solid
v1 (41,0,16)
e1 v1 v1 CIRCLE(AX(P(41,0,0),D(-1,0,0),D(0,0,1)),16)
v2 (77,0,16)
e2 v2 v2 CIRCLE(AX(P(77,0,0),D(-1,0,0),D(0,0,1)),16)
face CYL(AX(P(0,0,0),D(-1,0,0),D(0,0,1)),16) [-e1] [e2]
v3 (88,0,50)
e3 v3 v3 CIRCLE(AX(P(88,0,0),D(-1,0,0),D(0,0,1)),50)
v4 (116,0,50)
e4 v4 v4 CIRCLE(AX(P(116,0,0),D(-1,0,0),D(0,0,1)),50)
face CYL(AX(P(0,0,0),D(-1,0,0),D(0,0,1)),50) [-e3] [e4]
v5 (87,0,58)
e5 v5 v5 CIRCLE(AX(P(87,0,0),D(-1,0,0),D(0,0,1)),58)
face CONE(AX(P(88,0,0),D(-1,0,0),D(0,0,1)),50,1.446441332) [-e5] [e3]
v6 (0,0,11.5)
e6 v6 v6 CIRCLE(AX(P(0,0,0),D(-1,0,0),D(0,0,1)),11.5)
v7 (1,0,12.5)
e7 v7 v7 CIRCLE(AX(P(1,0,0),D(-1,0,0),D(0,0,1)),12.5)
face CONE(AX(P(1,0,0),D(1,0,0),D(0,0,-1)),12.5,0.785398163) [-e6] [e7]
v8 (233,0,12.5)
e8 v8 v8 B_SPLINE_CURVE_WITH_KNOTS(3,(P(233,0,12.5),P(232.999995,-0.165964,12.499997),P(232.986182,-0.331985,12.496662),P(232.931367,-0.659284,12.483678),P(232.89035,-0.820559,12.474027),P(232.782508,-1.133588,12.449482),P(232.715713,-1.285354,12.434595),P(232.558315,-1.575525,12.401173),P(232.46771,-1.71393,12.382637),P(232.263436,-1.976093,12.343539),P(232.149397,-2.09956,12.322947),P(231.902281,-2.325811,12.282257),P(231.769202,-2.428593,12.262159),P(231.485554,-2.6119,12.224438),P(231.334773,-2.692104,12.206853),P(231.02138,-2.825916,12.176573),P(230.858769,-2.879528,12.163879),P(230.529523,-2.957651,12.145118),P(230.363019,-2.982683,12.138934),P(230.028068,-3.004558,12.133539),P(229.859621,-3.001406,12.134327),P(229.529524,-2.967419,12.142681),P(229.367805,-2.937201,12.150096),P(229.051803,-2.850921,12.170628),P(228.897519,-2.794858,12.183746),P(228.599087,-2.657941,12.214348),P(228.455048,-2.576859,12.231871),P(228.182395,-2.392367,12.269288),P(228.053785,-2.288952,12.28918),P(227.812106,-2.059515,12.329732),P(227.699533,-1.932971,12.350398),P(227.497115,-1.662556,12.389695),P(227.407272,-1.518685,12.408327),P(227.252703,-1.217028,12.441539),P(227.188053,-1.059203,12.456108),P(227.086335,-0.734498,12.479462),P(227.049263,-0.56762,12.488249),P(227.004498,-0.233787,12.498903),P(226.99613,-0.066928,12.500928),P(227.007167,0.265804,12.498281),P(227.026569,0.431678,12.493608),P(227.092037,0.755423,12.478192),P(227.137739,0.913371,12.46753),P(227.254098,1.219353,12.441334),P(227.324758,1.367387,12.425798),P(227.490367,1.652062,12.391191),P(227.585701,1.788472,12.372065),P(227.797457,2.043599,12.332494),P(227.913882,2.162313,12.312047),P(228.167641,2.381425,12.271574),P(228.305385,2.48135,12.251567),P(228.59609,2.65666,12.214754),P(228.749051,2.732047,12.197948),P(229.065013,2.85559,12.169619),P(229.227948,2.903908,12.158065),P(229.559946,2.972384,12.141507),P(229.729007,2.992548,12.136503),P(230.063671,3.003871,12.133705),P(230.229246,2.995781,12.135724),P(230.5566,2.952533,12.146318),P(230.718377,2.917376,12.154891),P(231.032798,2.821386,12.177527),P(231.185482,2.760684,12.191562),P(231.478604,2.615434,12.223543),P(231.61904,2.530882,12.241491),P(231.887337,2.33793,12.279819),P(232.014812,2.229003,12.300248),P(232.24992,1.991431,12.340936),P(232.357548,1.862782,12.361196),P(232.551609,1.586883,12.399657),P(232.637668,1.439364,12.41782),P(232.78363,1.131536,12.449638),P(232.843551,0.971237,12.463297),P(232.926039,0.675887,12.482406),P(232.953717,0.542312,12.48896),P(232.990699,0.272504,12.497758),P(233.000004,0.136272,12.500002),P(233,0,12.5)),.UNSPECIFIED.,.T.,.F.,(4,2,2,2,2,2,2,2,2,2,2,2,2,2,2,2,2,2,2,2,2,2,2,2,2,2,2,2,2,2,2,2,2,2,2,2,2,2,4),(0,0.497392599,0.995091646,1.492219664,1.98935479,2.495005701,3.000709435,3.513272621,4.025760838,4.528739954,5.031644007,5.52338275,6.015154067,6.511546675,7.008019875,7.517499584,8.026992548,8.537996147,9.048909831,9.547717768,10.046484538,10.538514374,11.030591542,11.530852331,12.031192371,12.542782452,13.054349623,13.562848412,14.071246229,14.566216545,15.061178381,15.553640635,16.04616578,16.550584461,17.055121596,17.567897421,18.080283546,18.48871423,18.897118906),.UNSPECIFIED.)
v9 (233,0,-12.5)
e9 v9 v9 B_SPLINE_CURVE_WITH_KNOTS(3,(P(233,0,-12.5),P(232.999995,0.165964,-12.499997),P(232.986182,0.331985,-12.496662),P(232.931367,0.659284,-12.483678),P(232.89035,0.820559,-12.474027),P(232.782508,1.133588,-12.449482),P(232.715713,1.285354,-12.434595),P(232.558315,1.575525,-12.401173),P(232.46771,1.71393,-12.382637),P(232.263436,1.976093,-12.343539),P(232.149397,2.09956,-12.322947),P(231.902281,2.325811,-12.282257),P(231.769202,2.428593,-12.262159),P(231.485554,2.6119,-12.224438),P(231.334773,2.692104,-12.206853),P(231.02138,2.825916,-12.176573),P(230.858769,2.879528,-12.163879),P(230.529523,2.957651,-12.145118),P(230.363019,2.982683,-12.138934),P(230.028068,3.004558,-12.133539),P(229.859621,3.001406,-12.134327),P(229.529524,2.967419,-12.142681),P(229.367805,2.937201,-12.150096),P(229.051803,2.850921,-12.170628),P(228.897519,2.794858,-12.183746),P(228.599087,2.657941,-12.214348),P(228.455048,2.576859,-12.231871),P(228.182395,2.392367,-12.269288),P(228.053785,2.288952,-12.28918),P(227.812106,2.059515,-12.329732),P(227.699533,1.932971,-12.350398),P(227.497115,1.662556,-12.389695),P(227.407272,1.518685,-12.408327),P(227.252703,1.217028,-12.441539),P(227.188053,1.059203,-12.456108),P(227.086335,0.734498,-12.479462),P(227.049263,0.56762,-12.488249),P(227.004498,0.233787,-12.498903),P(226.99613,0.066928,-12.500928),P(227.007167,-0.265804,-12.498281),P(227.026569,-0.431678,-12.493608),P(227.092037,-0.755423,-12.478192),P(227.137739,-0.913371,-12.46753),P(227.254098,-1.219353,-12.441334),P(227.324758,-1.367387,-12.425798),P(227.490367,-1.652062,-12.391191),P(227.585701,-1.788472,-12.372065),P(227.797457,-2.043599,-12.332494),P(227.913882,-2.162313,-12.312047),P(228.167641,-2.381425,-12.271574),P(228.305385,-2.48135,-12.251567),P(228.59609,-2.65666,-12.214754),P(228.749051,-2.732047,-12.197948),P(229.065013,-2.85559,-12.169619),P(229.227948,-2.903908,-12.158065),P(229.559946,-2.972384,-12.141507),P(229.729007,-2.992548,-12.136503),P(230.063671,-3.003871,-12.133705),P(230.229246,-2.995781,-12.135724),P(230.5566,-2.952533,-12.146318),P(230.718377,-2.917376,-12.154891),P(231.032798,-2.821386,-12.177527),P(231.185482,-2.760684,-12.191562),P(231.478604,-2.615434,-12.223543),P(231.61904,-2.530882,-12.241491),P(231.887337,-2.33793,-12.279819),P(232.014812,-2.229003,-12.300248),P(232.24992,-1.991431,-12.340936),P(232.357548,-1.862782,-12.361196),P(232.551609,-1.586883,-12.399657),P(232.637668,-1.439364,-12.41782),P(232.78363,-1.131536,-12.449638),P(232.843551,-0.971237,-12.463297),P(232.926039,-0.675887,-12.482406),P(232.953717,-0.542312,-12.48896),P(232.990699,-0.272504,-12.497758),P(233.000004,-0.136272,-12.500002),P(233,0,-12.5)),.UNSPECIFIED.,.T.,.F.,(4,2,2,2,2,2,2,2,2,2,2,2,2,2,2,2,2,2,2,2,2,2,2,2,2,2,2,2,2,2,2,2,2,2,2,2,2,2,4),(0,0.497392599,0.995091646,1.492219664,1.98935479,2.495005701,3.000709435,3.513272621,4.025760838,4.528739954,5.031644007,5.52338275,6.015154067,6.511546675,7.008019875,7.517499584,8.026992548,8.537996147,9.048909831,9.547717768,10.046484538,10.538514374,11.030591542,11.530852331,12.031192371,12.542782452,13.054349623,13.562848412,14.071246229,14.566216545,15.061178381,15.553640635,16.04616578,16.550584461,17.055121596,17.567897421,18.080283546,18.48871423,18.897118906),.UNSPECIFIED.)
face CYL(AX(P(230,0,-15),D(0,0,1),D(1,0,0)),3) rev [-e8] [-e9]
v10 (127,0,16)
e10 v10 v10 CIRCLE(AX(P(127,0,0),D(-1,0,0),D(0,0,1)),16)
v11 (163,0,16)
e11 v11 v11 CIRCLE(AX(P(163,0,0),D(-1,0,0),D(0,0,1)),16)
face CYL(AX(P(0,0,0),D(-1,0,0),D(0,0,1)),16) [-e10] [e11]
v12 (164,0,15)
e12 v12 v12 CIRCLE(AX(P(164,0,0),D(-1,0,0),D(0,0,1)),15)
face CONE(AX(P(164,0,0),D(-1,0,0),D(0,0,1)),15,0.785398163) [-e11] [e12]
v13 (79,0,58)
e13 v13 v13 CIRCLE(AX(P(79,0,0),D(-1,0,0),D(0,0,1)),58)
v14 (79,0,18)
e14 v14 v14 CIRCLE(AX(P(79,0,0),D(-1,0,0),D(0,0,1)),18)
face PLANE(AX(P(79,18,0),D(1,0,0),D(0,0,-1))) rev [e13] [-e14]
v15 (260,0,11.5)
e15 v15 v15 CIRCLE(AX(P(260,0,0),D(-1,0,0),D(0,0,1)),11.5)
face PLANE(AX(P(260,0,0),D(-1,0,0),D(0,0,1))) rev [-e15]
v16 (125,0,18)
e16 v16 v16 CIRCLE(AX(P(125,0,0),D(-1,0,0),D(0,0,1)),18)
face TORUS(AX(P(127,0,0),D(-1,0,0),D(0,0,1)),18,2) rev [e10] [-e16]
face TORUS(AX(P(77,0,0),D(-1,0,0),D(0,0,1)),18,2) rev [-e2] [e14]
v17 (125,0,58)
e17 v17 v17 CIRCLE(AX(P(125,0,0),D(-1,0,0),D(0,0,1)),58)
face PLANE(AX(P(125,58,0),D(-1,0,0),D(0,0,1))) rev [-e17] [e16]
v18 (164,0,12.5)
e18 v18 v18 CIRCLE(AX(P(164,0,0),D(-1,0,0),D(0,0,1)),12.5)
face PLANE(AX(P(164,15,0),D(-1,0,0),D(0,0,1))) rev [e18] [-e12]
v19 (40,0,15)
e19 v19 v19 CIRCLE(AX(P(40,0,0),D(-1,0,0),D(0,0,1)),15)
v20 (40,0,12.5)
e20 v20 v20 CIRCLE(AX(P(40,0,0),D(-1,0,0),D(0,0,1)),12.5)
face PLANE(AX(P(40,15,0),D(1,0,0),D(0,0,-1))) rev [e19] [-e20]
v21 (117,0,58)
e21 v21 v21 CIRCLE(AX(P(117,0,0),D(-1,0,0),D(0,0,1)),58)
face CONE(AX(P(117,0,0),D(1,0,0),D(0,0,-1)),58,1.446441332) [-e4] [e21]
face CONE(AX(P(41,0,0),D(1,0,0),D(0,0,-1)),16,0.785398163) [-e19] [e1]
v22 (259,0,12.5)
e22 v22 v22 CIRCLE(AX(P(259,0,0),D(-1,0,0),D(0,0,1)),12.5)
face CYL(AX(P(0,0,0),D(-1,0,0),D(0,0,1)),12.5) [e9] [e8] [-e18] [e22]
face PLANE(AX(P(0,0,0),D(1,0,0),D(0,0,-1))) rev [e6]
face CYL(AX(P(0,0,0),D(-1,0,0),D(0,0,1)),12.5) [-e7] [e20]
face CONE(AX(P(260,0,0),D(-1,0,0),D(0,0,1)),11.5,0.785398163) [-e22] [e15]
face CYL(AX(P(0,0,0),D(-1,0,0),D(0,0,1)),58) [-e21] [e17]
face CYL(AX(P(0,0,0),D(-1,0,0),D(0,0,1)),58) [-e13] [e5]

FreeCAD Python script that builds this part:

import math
import FreeCAD as App
import Part
import Sketcher

V = App.Vector
Q = App.Units.Quantity

doc = App.newDocument("Part")
body = doc.addObject("PartDesign::Body", "Body")

sketch1 = body.newObject("Sketcher::SketchObject", "Sketch")
sketch1.AttachmentSupport = (doc.getObject("XY_Plane"), [""])
sketch1.MapMode = "FlatFace"
sketch1.addGeometry([
    Part.LineSegment(V(77, 16, 0), V(41, 16, 0)),
    Part.LineSegment(V(41, 16, 0), V(40, 15, 0)),
    Part.LineSegment(V(40, 15, 0), V(40, 12.5, 0)),
    Part.LineSegment(V(40, 12.5, 0), V(1, 12.5, 0)),
    Part.LineSegment(V(1, 12.5, 0), V(0, 11.5, 0)),
    Part.LineSegment(V(0, 11.5, 0), V(0, 0, 0)),
    Part.LineSegment(V(0, 0, 0), V(260, 0, 0)),
    Part.LineSegment(V(260, 0, 0), V(260, 11.5, 0)),
    Part.LineSegment(V(260, 11.5, 0), V(259, 12.5, 0)),
    Part.LineSegment(V(259, 12.5, 0), V(164, 12.5, 0)),
    Part.LineSegment(V(164, 12.5, 0), V(164, 15, 0)),
    Part.LineSegment(V(164, 15, 0), V(163, 16, 0)),
    Part.LineSegment(V(163, 16, 0), V(127, 16, 0)),
    Part.ArcOfCircle(Part.Circle(V(127, 18, 0), V(0, 0, 1), 2), math.radians(-180), math.radians(-90)),
    Part.LineSegment(V(125, 18, 0), V(125, 58, 0)),
    Part.LineSegment(V(125, 58, 0), V(117, 58, 0)),
    Part.LineSegment(V(117, 58, 0), V(116, 50, 0)),
    Part.LineSegment(V(116, 50, 0), V(88, 50, 0)),
    Part.LineSegment(V(88, 50, 0), V(87, 58, 0)),
    Part.LineSegment(V(87, 58, 0), V(79, 58, 0)),
    Part.LineSegment(V(79, 58, 0), V(79, 18, 0)),
    Part.ArcOfCircle(Part.Circle(V(77, 18, 0), V(0, 0, 1), 2), math.radians(-90), math.radians(0)),
], False)
sketch1.addConstraint([
    Sketcher.Constraint("Coincident", 0, 2, 1, 1),
    Sketcher.Constraint("Coincident", 1, 2, 2, 1),
    Sketcher.Constraint("Coincident", 2, 2, 3, 1),
    Sketcher.Constraint("Coincident", 3, 2, 4, 1),
    Sketcher.Constraint("Coincident", 4, 2, 5, 1),
    Sketcher.Constraint("Coincident", 5, 2, 6, 1),
    Sketcher.Constraint("Coincident", 6, 2, 7, 1),
    Sketcher.Constraint("Coincident", 7, 2, 8, 1),
    Sketcher.Constraint("Coincident", 8, 2, 9, 1),
    Sketcher.Constraint("Coincident", 9, 2, 10, 1),
    Sketcher.Constraint("Coincident", 10, 2, 11, 1),
    Sketcher.Constraint("Coincident", 11, 2, 12, 1),
    Sketcher.Constraint("Tangent", 12, 2, 13, 2),
    Sketcher.Constraint("Tangent", 13, 1, 14, 1),
    Sketcher.Constraint("Coincident", 14, 2, 15, 1),
    Sketcher.Constraint("Coincident", 15, 2, 16, 1),
    Sketcher.Constraint("Coincident", 16, 2, 17, 1),
    Sketcher.Constraint("Coincident", 17, 2, 18, 1),
    Sketcher.Constraint("Coincident", 18, 2, 19, 1),
    Sketcher.Constraint("Coincident", 19, 2, 20, 1),
    Sketcher.Constraint("Tangent", 20, 2, 21, 2),
    Sketcher.Constraint("Tangent", 21, 1, 0, 1),
    Sketcher.Constraint("Horizontal", 0),
    Sketcher.Constraint("Vertical", 2),
    Sketcher.Constraint("Horizontal", 3),
    Sketcher.Constraint("Vertical", 5),
    Sketcher.Constraint("Horizontal", 6),
    Sketcher.Constraint("Vertical", 7),
    Sketcher.Constraint("Horizontal", 9),
    Sketcher.Constraint("Vertical", 10),
    Sketcher.Constraint("Horizontal", 12),
    Sketcher.Constraint("Vertical", 14),
    Sketcher.Constraint("Horizontal", 15),
    Sketcher.Constraint("Horizontal", 17),
    Sketcher.Constraint("Horizontal", 19),
    Sketcher.Constraint("Vertical", 20),
    Sketcher.Constraint("Coincident", 5, 2, -1, 1),
    Sketcher.Constraint("Equal", 13, 21),
    Sketcher.Constraint("Parallel", 1, 4),
    Sketcher.Constraint("Perpendicular", 4, 8),
    Sketcher.Constraint("Parallel", 8, 11),
    Sketcher.Constraint("Horizontal", 13, 3, 21, 3),
    Sketcher.Constraint("Horizontal", 4, 2, 7, 2),
    Sketcher.Constraint("Horizontal", 3, 2, 8, 2),
    Sketcher.Constraint("Horizontal", 1, 2, 10, 2),
    Sketcher.Constraint("Horizontal", 15, 2, 18, 2),
    Sketcher.Constraint("Equal", 0, 12),
    Sketcher.Constraint("Equal", 15, 19),
    Sketcher.Constraint("Equal", 1, 4),
    Sketcher.Constraint("Equal", 4, 8),
    Sketcher.Constraint("Equal", 16, 18),
    Sketcher.Constraint("Radius", 13, Q("2 mm")),
    Sketcher.Constraint("DistanceX", 0, 2, 0, 1, Q("36 mm")),
    Sketcher.Constraint("DistanceX", 3, 2, 3, 1, Q("39 mm")),
    Sketcher.Constraint("DistanceX", 6, 1, 6, 2, Q("260 mm")),
    Sketcher.Constraint("DistanceX", 9, 2, 9, 1, Q("95 mm")),
    Sketcher.Constraint("DistanceX", 15, 2, 15, 1, Q("8 mm")),
    Sketcher.Constraint("DistanceX", 17, 2, 17, 1, Q("28 mm")),
    Sketcher.Constraint("DistanceY", 14, 1, 14, 2, Q("40 mm")),
    Sketcher.Constraint("DistanceY", 2, 2, 2, 1, Q("2.5 mm")),
    Sketcher.Constraint("DistanceY", 5, 2, 5, 1, Q("11.5 mm")),
    Sketcher.Constraint("DistanceX", -1, 1, 13, 3, Q("127 mm")),
    Sketcher.Constraint("DistanceY", -1, 1, 16, 2, Q("50 mm")),
])
revolution = body.newObject("PartDesign::Revolution", "Revolution")
revolution.Profile = sketch1
revolution.ReferenceAxis = (sketch1, ["H_Axis"])
revolution.Angle = 360

sketch2 = body.newObject("Sketcher::SketchObject", "Sketch001")
sketch2.AttachmentSupport = (doc.getObject("XY_Plane"), [""])
sketch2.MapMode = "FlatFace"
sketch2.addGeometry(Part.Circle(V(230, 0, 0), V(0, 0, 1), 3), False)
sketch2.addConstraint([
    Sketcher.Constraint("PointOnObject", 0, 3, -1),
    Sketcher.Constraint("Diameter", 0, Q("6 mm")),
    Sketcher.Constraint("DistanceX", -1, 1, 0, 3, Q("230 mm")),
])
pocket1 = body.newObject("PartDesign::Pocket", "Pocket")
pocket1.Profile = sketch2
pocket1.Length = 30
pocket1.Midplane = True

doc.recompute()
